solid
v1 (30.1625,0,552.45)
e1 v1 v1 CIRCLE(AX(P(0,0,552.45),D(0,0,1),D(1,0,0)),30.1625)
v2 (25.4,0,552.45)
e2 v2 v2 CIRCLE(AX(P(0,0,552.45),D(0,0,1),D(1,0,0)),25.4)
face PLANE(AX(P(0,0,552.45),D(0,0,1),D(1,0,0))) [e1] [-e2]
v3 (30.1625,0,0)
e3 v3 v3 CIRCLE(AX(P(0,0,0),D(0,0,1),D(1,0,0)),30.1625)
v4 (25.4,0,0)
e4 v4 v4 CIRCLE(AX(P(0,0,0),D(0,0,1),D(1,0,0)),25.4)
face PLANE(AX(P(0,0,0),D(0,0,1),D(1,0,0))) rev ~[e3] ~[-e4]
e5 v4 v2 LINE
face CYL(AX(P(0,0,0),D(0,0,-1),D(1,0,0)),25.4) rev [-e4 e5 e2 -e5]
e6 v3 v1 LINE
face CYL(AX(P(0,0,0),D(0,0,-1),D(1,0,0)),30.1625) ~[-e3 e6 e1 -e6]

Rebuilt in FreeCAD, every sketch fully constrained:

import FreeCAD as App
import Part
import Sketcher
from FreeCAD import Vector
Q = App.Units.Quantity

doc = App.newDocument("Part")
body = doc.addObject("PartDesign::Body", "Body")

# Sketch on XY plane
sketch1 = body.newObject("Sketcher::SketchObject", "Sketch")
sketch1.AttachmentSupport = (doc.getObject("XY_Plane"), [""])
sketch1.MapMode = "FlatFace"
sketch1.addGeometry([
    Part.Circle(Vector(0, 0, 0), Vector(0, 0, 1), 30.1625),
    Part.Circle(Vector(0, 0, 0), Vector(0, 0, 1), 25.4),
], False)
sketch1.addConstraint([
    Sketcher.Constraint("Coincident", 0, 3, -1, 1),
    Sketcher.Constraint("Coincident", 1, 3, -1, 1),
    Sketcher.Constraint("Diameter", 1, Q("2 in")),
    Sketcher.Constraint("Diameter", 0, Q("2.375 in")),
])
pad1 = body.newObject("PartDesign::Pad", "Pad")
pad1.Profile = sketch1
pad1.Length = Q("21.75 in")

doc.recompute()
